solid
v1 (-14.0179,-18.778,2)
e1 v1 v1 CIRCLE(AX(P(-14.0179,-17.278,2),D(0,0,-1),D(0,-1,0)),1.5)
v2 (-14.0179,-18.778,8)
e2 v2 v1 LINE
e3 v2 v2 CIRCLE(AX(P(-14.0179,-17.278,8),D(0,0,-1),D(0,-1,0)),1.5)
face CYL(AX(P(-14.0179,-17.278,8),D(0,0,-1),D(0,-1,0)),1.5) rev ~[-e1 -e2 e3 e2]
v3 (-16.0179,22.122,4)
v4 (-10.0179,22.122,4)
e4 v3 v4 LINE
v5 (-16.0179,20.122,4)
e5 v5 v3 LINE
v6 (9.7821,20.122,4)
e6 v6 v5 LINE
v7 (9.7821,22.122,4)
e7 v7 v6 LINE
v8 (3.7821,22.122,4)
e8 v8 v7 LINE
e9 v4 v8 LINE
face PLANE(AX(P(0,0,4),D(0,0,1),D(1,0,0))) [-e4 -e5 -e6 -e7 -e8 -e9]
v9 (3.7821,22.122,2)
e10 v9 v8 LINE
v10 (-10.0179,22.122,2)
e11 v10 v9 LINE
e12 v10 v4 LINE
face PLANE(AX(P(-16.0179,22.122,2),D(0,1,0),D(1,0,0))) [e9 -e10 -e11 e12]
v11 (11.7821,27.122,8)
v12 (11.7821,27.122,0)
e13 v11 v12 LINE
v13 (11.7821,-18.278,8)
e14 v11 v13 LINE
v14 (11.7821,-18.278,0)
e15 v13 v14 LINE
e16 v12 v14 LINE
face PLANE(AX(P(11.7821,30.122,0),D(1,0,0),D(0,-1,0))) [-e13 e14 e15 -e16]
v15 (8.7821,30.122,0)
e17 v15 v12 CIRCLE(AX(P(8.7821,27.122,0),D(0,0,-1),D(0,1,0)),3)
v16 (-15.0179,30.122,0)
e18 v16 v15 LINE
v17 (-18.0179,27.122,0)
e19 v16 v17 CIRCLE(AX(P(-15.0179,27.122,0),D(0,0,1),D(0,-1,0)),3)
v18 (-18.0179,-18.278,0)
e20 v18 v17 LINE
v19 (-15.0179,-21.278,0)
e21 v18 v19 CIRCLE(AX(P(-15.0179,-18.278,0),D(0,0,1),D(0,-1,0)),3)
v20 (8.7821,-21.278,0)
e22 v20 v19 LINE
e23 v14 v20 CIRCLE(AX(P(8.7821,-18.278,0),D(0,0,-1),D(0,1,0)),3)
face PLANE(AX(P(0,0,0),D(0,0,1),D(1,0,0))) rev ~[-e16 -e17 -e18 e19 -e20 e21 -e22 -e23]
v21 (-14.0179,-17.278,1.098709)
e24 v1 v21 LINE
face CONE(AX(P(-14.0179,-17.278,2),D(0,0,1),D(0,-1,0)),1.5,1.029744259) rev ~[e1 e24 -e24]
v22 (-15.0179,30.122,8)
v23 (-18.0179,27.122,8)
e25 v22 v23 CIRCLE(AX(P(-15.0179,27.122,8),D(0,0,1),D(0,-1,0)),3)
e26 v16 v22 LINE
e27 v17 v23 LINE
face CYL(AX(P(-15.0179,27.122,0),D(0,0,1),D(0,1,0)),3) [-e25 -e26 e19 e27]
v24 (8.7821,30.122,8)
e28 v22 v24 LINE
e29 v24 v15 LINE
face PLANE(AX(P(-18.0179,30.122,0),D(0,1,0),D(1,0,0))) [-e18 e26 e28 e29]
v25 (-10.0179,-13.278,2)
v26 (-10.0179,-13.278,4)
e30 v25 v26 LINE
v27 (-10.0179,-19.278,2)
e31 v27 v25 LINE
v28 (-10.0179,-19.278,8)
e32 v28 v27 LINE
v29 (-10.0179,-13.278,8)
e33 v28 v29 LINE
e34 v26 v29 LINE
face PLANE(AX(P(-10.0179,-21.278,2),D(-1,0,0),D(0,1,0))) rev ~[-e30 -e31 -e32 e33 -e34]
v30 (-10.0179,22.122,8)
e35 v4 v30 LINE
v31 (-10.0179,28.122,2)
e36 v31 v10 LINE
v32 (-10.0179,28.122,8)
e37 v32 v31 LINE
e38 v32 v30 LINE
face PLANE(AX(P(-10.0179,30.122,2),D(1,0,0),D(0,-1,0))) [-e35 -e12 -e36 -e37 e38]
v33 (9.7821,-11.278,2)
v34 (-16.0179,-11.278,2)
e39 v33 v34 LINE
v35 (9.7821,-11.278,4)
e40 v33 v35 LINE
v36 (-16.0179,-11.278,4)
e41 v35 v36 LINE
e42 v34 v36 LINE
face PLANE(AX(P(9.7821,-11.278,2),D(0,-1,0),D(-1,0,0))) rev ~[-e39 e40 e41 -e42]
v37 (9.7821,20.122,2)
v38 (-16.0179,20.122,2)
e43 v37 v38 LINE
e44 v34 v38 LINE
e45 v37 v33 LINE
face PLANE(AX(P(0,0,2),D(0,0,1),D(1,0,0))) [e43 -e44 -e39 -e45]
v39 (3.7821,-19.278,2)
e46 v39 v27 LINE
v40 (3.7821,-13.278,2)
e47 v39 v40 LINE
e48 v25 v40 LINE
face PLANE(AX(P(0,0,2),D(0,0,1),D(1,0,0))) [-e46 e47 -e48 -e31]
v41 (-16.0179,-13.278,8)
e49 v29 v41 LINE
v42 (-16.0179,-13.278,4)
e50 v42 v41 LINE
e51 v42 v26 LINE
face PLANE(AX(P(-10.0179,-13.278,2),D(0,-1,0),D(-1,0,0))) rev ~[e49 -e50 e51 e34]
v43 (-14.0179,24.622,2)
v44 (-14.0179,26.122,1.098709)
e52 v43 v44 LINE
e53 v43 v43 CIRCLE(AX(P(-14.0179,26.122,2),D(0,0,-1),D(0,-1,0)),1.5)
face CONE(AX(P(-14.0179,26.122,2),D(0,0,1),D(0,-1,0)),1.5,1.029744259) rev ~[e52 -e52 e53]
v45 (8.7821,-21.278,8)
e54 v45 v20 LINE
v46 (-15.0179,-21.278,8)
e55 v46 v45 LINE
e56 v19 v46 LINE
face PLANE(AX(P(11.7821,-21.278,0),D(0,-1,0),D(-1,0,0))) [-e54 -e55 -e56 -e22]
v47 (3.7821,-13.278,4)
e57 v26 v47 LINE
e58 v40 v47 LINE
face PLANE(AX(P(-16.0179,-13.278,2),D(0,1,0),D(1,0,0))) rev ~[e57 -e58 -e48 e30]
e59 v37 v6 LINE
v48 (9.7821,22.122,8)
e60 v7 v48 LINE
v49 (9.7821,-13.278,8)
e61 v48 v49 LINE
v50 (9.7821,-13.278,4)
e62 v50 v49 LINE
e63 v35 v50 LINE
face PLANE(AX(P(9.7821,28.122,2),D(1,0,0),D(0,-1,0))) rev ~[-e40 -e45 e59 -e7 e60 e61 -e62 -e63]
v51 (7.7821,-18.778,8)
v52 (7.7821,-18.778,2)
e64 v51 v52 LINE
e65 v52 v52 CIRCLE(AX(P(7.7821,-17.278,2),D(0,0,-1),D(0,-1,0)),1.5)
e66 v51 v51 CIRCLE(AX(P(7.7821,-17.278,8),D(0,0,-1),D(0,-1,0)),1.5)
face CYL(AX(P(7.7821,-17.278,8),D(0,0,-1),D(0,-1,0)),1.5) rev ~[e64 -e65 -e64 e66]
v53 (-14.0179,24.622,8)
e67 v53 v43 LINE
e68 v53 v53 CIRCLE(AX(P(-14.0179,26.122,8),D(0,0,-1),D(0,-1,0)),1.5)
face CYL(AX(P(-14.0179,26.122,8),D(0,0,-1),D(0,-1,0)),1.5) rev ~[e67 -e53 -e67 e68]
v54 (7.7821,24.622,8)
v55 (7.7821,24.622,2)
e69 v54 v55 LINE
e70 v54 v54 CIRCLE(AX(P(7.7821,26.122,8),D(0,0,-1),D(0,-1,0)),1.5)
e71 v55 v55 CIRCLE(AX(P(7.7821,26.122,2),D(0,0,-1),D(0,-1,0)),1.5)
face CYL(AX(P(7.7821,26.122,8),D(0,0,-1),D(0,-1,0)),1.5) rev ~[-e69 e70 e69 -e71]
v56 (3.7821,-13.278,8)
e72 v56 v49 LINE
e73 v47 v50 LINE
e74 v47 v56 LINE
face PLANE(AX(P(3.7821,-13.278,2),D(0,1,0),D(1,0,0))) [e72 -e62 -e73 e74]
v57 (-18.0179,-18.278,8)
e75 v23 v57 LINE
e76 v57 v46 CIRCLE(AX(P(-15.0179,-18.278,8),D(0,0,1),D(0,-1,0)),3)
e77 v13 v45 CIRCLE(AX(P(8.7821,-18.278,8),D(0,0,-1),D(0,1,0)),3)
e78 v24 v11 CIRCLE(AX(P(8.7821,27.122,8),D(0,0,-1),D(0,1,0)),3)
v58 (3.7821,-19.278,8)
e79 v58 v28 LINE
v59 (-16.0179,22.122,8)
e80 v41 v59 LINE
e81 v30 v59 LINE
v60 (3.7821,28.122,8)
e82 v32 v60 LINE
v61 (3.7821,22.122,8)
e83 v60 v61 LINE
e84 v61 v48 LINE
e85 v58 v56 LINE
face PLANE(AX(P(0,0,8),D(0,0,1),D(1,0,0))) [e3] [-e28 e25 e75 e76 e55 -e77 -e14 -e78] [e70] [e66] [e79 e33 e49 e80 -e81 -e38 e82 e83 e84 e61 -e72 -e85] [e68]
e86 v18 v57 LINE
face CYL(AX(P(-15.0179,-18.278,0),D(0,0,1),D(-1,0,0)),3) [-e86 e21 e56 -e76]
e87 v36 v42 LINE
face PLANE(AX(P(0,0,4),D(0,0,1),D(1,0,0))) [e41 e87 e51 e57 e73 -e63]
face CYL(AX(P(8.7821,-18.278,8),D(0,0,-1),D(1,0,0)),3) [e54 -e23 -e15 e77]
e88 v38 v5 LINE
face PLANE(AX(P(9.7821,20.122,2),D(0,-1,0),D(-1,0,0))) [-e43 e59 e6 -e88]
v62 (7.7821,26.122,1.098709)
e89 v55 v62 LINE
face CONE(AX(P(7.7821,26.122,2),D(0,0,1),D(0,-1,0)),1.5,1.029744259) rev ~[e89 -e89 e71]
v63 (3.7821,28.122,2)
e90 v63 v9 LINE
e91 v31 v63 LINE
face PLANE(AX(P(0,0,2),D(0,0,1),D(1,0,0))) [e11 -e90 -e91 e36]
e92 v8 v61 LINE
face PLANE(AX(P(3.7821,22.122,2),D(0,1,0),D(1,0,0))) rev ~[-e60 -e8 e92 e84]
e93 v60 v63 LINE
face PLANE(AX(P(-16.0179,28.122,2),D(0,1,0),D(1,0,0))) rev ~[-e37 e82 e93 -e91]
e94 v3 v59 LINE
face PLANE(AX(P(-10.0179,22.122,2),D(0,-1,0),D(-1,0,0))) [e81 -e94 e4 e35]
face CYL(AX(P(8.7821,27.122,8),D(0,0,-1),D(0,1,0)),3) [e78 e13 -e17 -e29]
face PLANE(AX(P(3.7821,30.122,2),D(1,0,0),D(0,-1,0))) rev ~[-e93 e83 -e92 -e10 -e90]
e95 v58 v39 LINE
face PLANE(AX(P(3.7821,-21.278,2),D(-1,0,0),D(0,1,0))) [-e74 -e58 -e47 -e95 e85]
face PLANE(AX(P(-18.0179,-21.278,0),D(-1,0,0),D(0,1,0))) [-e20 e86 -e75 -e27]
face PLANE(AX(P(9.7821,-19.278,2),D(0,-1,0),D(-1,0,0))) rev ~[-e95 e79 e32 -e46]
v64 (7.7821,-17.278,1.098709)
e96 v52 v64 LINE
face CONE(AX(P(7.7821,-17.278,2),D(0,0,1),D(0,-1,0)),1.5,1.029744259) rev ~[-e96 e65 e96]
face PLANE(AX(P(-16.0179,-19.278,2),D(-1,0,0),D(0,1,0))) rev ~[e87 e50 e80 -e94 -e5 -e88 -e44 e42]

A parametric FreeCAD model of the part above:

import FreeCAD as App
import Part
import Sketcher
from FreeCAD import Vector


def edges_at(feature, points):
    """Names of the edges that pass closest to the given points."""
    edges = feature.Shape.Edges
    near = lambda p: min(range(len(edges)), key=lambda i: edges[i].distToShape(Part.Vertex(*p))[0])
    return sorted({f"Edge{near(p) + 1}" for p in points})

doc = App.newDocument("Part")
body = doc.addObject("PartDesign::Body", "Body")

sketch1 = body.newObject("Sketcher::SketchObject", "Sketch")
sketch1.AttachmentSupport = (doc.getObject("XY_Plane"), [""])
sketch1.MapMode = "FlatFace"
sketch1.addGeometry([
    Part.LineSegment(Vector(12, 30, 0), Vector(-18, 30, 0)),
    Part.LineSegment(Vector(-18, 30, 0), Vector(-18, -21, 0)),
    Part.LineSegment(Vector(-18, -21, 0), Vector(12, -21, 0)),
    Part.LineSegment(Vector(12, -21, 0), Vector(12, 30, 0)),
], False)
sketch1.addConstraint([
    Sketcher.Constraint("Coincident", 0, 2, 1, 1),
    Sketcher.Constraint("Coincident", 1, 2, 2, 1),
    Sketcher.Constraint("Coincident", 2, 2, 3, 1),
    Sketcher.Constraint("Coincident", 3, 2, 0, 1),
    Sketcher.Constraint("Horizontal", 0),
    Sketcher.Constraint("Vertical", 1),
    Sketcher.Constraint("Horizontal", 2),
    Sketcher.Constraint("Vertical", 3),
    Sketcher.Constraint("DistanceX", 0, 2, 0, 1, 29.8),
    Sketcher.Constraint("DistanceY", 1, 2, 1, 1, 51.4),
    Sketcher.Constraint("DistanceX", 0, 2, -1, 1, 18.018),
    Sketcher.Constraint("DistanceY", -1, 1, 0, 2, 30.122),
])
pad1 = body.newObject("PartDesign::Pad", "Pad")
pad1.Profile = sketch1
pad1.Length = 2

sketch2 = body.newObject("Sketcher::SketchObject", "Sketch001")
sketch2.AttachmentSupport = (doc.getObject("XY_Plane"), [""])
sketch2.MapMode = "FlatFace"
sketch2.AttachmentOffset = App.Placement(Vector(0, 0, 2), App.Rotation())
sketch2.addGeometry([
    Part.LineSegment(Vector(12, 30, 0), Vector(-18, 30, 0)),
    Part.LineSegment(Vector(-18, 30, 0), Vector(-18, -21, 0)),
    Part.LineSegment(Vector(-18, -21, 0), Vector(12, -21, 0)),
    Part.LineSegment(Vector(12, -21, 0), Vector(12, 30, 0)),
    Part.LineSegment(Vector(-16, -19, 0), Vector(-16, 28, 0)),
    Part.LineSegment(Vector(-16, 28, 0), Vector(10, 28, 0)),
    Part.LineSegment(Vector(10, 28, 0), Vector(10, -19, 0)),
    Part.LineSegment(Vector(10, -19, 0), Vector(-16, -19, 0)),
], False)
sketch2.addConstraint([
    Sketcher.Constraint("Coincident", 0, 2, 1, 1),
    Sketcher.Constraint("Coincident", 1, 2, 2, 1),
    Sketcher.Constraint("Coincident", 2, 2, 3, 1),
    Sketcher.Constraint("Coincident", 3, 2, 0, 1),
    Sketcher.Constraint("Coincident", 4, 2, 5, 1),
    Sketcher.Constraint("Coincident", 5, 2, 6, 1),
    Sketcher.Constraint("Coincident", 6, 2, 7, 1),
    Sketcher.Constraint("Coincident", 7, 2, 4, 1),
    Sketcher.Constraint("Horizontal", 0),
    Sketcher.Constraint("Vertical", 1),
    Sketcher.Constraint("Horizontal", 2),
    Sketcher.Constraint("Vertical", 3),
    Sketcher.Constraint("Vertical", 4),
    Sketcher.Constraint("Horizontal", 5),
    Sketcher.Constraint("Vertical", 6),
    Sketcher.Constraint("Horizontal", 7),
    Sketcher.Constraint("DistanceX", 5, 1, 5, 2, 25.8),
    Sketcher.Constraint("DistanceY", 4, 1, 4, 2, 47.4),
    Sketcher.Constraint("DistanceX", 0, 2, 4, 2, 2.0),
    Sketcher.Constraint("DistanceY", 4, 2, 0, 2, 2.0),
    Sketcher.Constraint("DistanceX", 5, 2, 3, 2, 2.0),
    Sketcher.Constraint("DistanceY", 2, 2, 6, 2, 2.0),
    Sketcher.Constraint("DistanceX", 0, 2, -1, 1, 18.018),
    Sketcher.Constraint("DistanceY", -1, 1, 0, 2, 30.122),
])
pad2 = body.newObject("PartDesign::Pad", "Pad001")
pad2.Profile = sketch2
pad2.Length = 6

sketch3 = body.newObject("Sketcher::SketchObject", "Sketch002")
sketch3.AttachmentSupport = (doc.getObject("XY_Plane"), [""])
sketch3.MapMode = "FlatFace"
sketch3.AttachmentOffset = App.Placement(Vector(0, 0, 2), App.Rotation())
sketch3.addGeometry([
    Part.LineSegment(Vector(4, -13, 0), Vector(4, -21, 0)),
    Part.LineSegment(Vector(4, -21, 0), Vector(12, -21, 0)),
    Part.LineSegment(Vector(12, -21, 0), Vector(12, -13, 0)),
    Part.LineSegment(Vector(12, -13, 0), Vector(4, -13, 0)),
    Part.LineSegment(Vector(-10, -13, 0), Vector(-18, -13, 0)),
    Part.LineSegment(Vector(-18, -13, 0), Vector(-18, -21, 0)),
    Part.LineSegment(Vector(-18, -21, 0), Vector(-10, -21, 0)),
    Part.LineSegment(Vector(-10, -21, 0), Vector(-10, -13, 0)),
    Part.LineSegment(Vector(-10, 30, 0), Vector(-18, 30, 0)),
    Part.LineSegment(Vector(-18, 30, 0), Vector(-18, 22, 0)),
    Part.LineSegment(Vector(-18, 22, 0), Vector(-10, 22, 0)),
    Part.LineSegment(Vector(-10, 22, 0), Vector(-10, 30, 0)),
    Part.LineSegment(Vector(12, 22, 0), Vector(12, 30, 0)),
    Part.LineSegment(Vector(12, 30, 0), Vector(4, 30, 0)),
    Part.LineSegment(Vector(4, 30, 0), Vector(4, 22, 0)),
    Part.LineSegment(Vector(4, 22, 0), Vector(12, 22, 0)),
], False)
sketch3.addConstraint([
    Sketcher.Constraint("Coincident", 0, 2, 1, 1),
    Sketcher.Constraint("Coincident", 1, 2, 2, 1),
    Sketcher.Constraint("Coincident", 2, 2, 3, 1),
    Sketcher.Constraint("Coincident", 3, 2, 0, 1),
    Sketcher.Constraint("Coincident", 4, 2, 5, 1),
    Sketcher.Constraint("Coincident", 5, 2, 6, 1),
    Sketcher.Constraint("Coincident", 6, 2, 7, 1),
    Sketcher.Constraint("Coincident", 7, 2, 4, 1),
    Sketcher.Constraint("Coincident", 8, 2, 9, 1),
    Sketcher.Constraint("Coincident", 9, 2, 10, 1),
    Sketcher.Constraint("Coincident", 10, 2, 11, 1),
    Sketcher.Constraint("Coincident", 11, 2, 8, 1),
    Sketcher.Constraint("Coincident", 12, 2, 13, 1),
    Sketcher.Constraint("Coincident", 13, 2, 14, 1),
    Sketcher.Constraint("Coincident", 14, 2, 15, 1),
    Sketcher.Constraint("Coincident", 15, 2, 12, 1),
    Sketcher.Constraint("Vertical", 0),
    Sketcher.Constraint("Horizontal", 1),
    Sketcher.Constraint("Vertical", 2),
    Sketcher.Constraint("Horizontal", 3),
    Sketcher.Constraint("Horizontal", 4),
    Sketcher.Constraint("Vertical", 5),
    Sketcher.Constraint("Horizontal", 6),
    Sketcher.Constraint("Vertical", 7),
    Sketcher.Constraint("Horizontal", 8),
    Sketcher.Constraint("Vertical", 9),
    Sketcher.Constraint("Horizontal", 10),
    Sketcher.Constraint("Vertical", 11),
    Sketcher.Constraint("Vertical", 12),
    Sketcher.Constraint("Horizontal", 13),
    Sketcher.Constraint("Vertical", 14),
    Sketcher.Constraint("Horizontal", 15),
    Sketcher.Constraint("Horizontal", 3, 2, 4, 2),
    Sketcher.Constraint("Horizontal", 1, 2, 5, 2),
    Sketcher.Constraint("Horizontal", 11, 2, 12, 2),
    Sketcher.Constraint("Horizontal", 10, 2, 14, 2),
    Sketcher.Constraint("Vertical", 5, 2, 8, 2),
    Sketcher.Constraint("Vertical", 7, 2, 10, 2),
    Sketcher.Constraint("Vertical", 2, 2, 12, 2),
    Sketcher.Constraint("Vertical", 3, 2, 13, 2),
    Sketcher.Constraint("Equal", 3, 4),
    Sketcher.Constraint("Equal", 15, 0),
    Sketcher.Constraint("Equal", 7, 9),
    Sketcher.Constraint("DistanceX", 1, 1, 1, 2, 8.0),
    Sketcher.Constraint("DistanceY", 4, 2, 9, 2, 35.4),
    Sketcher.Constraint("DistanceX", 4, 2, 3, 2, 21.8),
    Sketcher.Constraint("DistanceX", -1, 1, 0, 2, 3.782),
    Sketcher.Constraint("DistanceY", 0, 2, -1, 1, 21.278),
])
pad3 = body.newObject("PartDesign::Pad", "Pad002")
pad3.Profile = sketch3
pad3.Length = 6

sketch4 = body.newObject("Sketcher::SketchObject", "Sketch003")
sketch4.AttachmentSupport = (doc.getObject("XY_Plane"), [""])
sketch4.MapMode = "FlatFace"
sketch4.AttachmentOffset = App.Placement(Vector(0, 0, 2), App.Rotation())
sketch4.addGeometry([
    Part.LineSegment(Vector(9.8, -13.3, 0), Vector(9.8, -11.3, 0)),
    Part.LineSegment(Vector(9.8, -11.3, 0), Vector(-16, -11.3, 0)),
    Part.LineSegment(Vector(-16, -11.3, 0), Vector(-16, -13.3, 0)),
    Part.LineSegment(Vector(-16, -13.3, 0), Vector(9.8, -13.3, 0)),
    Part.LineSegment(Vector(9.8, 20.1, 0), Vector(9.8, 22.1, 0)),
    Part.LineSegment(Vector(9.8, 22.1, 0), Vector(-16, 22.1, 0)),
    Part.LineSegment(Vector(-16, 22.1, 0), Vector(-16, 20.1, 0)),
    Part.LineSegment(Vector(-16, 20.1, 0), Vector(9.8, 20.1, 0)),
], False)
sketch4.addConstraint([
    Sketcher.Constraint("Coincident", 0, 2, 1, 1),
    Sketcher.Constraint("Coincident", 1, 2, 2, 1),
    Sketcher.Constraint("Coincident", 2, 2, 3, 1),
    Sketcher.Constraint("Coincident", 3, 2, 0, 1),
    Sketcher.Constraint("Coincident", 4, 2, 5, 1),
    Sketcher.Constraint("Coincident", 5, 2, 6, 1),
    Sketcher.Constraint("Coincident", 6, 2, 7, 1),
    Sketcher.Constraint("Coincident", 7, 2, 4, 1),
    Sketcher.Constraint("Vertical", 0),
    Sketcher.Constraint("Horizontal", 1),
    Sketcher.Constraint("Vertical", 2),
    Sketcher.Constraint("Horizontal", 3),
    Sketcher.Constraint("Vertical", 4),
    Sketcher.Constraint("Horizontal", 5),
    Sketcher.Constraint("Vertical", 6),
    Sketcher.Constraint("Horizontal", 7),
    Sketcher.Constraint("Vertical", 3, 2, 4, 2),
    Sketcher.Constraint("Vertical", 2, 2, 5, 2),
    Sketcher.Constraint("Equal", 2, 4),
    Sketcher.Constraint("DistanceY", 0, 1, 0, 2, 2.0),
    Sketcher.Constraint("DistanceX", 1, 2, 1, 1, 25.8),
    Sketcher.Constraint("DistanceY", 0, 2, 4, 2, 33.4),
    Sketcher.Constraint("DistanceX", -1, 1, 0, 2, 9.782),
    Sketcher.Constraint("DistanceY", 0, 2, -1, 1, 11.278),
])
pad4 = body.newObject("PartDesign::Pad", "Pad003")
pad4.Profile = sketch4
pad4.Length = 2

sketch5 = body.newObject("Sketcher::SketchObject", "Sketch004")
sketch5.AttachmentSupport = (doc.getObject("XY_Plane"), [""])
sketch5.MapMode = "FlatFace"
sketch5.AttachmentOffset = App.Placement(Vector(0, 0, 8), App.Rotation())
sketch5.addGeometry([
    Part.Circle(Vector(-14, 26.1, 0), Vector(0, 0, 1), 1.5),
    Part.Circle(Vector(7.8, 26.1, 0), Vector(0, 0, 1), 1.5),
    Part.Circle(Vector(-14, -17.3, 0), Vector(0, 0, 1), 1.5),
    Part.Circle(Vector(7.8, -17.3, 0), Vector(0, 0, 1), 1.5),
], False)
sketch5.addConstraint([
    Sketcher.Constraint("Equal", 0, 1),
    Sketcher.Constraint("Equal", 1, 2),
    Sketcher.Constraint("Equal", 2, 3),
    Sketcher.Constraint("Horizontal", 0, 3, 1, 3),
    Sketcher.Constraint("Horizontal", 2, 3, 3, 3),
    Sketcher.Constraint("Vertical", 0, 3, 2, 3),
    Sketcher.Constraint("Vertical", 1, 3, 3, 3),
    Sketcher.Constraint("Diameter", 0, 3.0),
    Sketcher.Constraint("DistanceX", 0, 3, 1, 3, 21.8),
    Sketcher.Constraint("DistanceY", 2, 3, 0, 3, 43.4),
    Sketcher.Constraint("DistanceX", 0, 3, -1, 1, 14.018),
    Sketcher.Constraint("DistanceY", -1, 1, 0, 3, 26.122),
])
doc.recompute()
hole = body.newObject("PartDesign::Hole", "Hole")
hole.Profile = sketch5
hole.ThreadType = "None"
hole.Diameter = 3
hole.DepthType = "Dimension"
hole.Depth = 6
hole.DrillPoint = "Angled"
hole.DrillPointAngle = 118
doc.recompute()

fillet = body.newObject("PartDesign::Fillet", "Fillet")
fillet.Base = (hole, edges_at(hole, [
    (-18.018, -21.278, 4),
    (11.782, -21.278, 4),
    (-18.018, 30.122, 4),
    (11.782, 30.122, 4),
]))
fillet.Radius = 3

doc.recompute()
